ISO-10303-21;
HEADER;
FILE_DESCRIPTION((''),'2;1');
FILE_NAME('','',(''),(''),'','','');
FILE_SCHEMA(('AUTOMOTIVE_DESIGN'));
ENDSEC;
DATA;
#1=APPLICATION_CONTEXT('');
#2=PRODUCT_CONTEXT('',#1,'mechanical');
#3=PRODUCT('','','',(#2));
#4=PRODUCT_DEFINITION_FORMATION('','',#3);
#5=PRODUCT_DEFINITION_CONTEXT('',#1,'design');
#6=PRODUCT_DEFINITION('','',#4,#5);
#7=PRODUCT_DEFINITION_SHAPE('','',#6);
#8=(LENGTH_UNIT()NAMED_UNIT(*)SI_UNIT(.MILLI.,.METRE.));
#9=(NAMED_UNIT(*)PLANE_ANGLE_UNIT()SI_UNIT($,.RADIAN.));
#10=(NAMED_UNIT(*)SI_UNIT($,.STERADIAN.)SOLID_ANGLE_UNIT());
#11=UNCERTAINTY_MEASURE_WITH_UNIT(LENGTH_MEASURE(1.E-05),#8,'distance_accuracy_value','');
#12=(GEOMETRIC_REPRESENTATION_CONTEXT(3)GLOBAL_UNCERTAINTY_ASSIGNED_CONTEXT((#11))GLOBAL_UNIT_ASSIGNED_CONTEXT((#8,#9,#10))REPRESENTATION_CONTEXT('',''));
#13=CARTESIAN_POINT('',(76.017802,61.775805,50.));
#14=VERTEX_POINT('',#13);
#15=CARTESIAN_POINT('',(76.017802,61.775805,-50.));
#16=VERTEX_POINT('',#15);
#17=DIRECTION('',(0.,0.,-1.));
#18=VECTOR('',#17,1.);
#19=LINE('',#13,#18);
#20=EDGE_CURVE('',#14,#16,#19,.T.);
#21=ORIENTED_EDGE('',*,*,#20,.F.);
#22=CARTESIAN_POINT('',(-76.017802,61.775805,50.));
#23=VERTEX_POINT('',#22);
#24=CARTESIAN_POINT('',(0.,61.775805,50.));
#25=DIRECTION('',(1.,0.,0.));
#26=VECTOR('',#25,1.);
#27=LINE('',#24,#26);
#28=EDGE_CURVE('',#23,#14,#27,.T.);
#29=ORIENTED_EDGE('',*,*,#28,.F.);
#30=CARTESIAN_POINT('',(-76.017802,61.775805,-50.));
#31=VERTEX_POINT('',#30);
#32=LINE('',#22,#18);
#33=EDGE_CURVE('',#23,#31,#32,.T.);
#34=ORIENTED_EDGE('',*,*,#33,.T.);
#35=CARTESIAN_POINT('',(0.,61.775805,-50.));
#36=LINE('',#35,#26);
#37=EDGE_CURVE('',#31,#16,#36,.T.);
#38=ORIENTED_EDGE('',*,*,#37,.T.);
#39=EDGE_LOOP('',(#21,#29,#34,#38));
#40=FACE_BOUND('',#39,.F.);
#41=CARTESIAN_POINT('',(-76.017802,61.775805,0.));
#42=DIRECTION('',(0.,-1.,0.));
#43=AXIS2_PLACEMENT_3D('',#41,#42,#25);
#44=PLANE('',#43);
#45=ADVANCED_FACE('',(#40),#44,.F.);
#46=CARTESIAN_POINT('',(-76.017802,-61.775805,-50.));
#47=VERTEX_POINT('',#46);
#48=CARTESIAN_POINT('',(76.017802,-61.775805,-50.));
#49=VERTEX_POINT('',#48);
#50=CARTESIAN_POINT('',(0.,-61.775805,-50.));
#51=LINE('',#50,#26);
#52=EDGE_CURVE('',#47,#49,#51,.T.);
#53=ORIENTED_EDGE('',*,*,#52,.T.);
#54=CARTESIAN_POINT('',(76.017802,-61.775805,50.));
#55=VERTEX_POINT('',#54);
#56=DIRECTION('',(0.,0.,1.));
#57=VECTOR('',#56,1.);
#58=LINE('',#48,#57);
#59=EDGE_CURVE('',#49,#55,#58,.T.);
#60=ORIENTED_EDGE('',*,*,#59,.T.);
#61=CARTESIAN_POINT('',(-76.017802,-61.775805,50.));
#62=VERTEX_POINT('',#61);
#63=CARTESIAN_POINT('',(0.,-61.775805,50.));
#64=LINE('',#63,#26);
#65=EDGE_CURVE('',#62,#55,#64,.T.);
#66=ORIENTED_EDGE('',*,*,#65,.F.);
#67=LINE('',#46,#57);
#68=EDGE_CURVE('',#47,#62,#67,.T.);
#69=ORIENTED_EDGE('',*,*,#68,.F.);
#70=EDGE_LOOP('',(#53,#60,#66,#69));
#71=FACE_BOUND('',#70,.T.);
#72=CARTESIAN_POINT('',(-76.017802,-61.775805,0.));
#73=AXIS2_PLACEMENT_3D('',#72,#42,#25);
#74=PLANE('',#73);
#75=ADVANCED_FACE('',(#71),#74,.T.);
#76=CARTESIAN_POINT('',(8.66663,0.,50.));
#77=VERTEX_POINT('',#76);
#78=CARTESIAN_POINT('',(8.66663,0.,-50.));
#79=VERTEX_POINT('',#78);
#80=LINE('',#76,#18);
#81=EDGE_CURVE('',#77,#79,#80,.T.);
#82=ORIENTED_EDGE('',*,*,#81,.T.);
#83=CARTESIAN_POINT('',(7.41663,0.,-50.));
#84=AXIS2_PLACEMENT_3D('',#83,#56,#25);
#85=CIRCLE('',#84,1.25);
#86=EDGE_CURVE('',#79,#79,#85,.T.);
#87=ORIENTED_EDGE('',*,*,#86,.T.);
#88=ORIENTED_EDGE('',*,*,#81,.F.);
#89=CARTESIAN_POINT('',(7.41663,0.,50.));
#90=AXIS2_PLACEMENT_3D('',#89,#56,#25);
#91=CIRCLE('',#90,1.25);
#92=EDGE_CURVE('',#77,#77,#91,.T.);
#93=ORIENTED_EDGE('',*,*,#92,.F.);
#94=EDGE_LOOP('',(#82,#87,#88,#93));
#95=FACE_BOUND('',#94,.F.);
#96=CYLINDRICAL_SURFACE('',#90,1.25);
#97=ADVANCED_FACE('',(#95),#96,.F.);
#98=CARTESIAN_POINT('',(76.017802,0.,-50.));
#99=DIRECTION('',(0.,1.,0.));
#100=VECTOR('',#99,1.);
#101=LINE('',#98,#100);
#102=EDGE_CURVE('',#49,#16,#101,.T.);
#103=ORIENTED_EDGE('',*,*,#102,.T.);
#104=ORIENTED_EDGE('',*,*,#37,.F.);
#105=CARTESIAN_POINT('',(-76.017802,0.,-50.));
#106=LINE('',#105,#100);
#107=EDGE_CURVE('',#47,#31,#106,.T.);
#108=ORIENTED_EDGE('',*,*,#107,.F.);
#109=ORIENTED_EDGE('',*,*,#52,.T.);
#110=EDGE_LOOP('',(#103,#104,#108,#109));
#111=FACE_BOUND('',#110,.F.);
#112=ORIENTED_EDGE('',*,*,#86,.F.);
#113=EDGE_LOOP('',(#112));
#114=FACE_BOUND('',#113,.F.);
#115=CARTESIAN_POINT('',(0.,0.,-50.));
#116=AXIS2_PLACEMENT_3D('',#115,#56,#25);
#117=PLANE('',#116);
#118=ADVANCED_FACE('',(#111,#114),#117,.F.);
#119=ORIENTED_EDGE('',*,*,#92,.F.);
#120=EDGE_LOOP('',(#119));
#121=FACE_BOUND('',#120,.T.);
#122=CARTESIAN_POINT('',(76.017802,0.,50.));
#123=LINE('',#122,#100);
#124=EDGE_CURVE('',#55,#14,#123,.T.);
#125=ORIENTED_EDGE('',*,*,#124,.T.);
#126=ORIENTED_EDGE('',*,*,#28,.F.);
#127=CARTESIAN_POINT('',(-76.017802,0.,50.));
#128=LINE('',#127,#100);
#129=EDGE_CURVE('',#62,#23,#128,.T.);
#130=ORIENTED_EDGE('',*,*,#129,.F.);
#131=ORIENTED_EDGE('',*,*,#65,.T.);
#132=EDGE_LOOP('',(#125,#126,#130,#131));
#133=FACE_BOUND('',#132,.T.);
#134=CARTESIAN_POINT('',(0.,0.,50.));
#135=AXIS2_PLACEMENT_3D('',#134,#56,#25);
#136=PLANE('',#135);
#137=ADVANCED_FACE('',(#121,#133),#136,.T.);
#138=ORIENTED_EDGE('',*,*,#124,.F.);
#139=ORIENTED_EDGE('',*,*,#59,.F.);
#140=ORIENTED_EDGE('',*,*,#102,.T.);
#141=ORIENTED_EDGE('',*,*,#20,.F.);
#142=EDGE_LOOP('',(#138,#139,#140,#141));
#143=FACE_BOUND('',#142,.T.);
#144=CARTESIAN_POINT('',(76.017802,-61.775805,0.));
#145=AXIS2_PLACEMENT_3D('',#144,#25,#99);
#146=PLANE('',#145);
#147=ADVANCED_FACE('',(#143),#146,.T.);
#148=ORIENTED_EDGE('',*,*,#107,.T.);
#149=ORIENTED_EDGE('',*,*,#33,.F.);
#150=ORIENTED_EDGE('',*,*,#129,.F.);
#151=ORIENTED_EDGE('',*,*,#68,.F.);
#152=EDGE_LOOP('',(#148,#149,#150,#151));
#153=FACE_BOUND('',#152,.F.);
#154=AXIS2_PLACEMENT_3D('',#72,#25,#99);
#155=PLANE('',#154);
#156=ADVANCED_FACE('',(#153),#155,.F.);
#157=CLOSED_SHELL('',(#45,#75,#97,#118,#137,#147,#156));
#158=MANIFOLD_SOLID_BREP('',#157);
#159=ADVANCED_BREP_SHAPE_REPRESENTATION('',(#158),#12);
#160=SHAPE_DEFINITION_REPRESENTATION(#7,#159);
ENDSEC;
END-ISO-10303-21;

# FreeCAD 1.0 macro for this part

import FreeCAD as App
import Part
import Sketcher

V = App.Vector


def add_polygon(sketch, points):
    """Adds a closed chain of lines whose ends are joined by coincident constraints."""
    first, n = sketch.GeometryCount, len(points)
    for a, b in zip(points, points[1:] + points[:1]):
        sketch.addGeometry(Part.LineSegment(App.Vector(*a, 0), App.Vector(*b, 0)), False)
    for i in range(n):
        sketch.addConstraint(Sketcher.Constraint("Coincident", first + i, 2, first + (i + 1) % n, 1))

doc = App.newDocument("Part")
body = doc.addObject("PartDesign::Body", "Body")

sketch1 = body.newObject("Sketcher::SketchObject", "Sketch")
sketch1.AttachmentSupport = (doc.getObject("XY_Plane"), [""])
sketch1.MapMode = "FlatFace"
add_polygon(sketch1, [(-76, 62), (-76, -62), (76, -62), (76, 62)])
sketch1.addConstraint([
    Sketcher.Constraint("Vertical", 0),
    Sketcher.Constraint("Horizontal", 1),
    Sketcher.Constraint("Vertical", 2),
    Sketcher.Constraint("Horizontal", 3),
    Sketcher.Constraint("Symmetric", 0, 2, 2, 2, -1, 1),
    Sketcher.Constraint("DistanceY", 0, 2, 0, 1, 123.55161),
    Sketcher.Constraint("DistanceX", 1, 1, 1, 2, 152.035604),
])
pad1 = body.newObject("PartDesign::Pad", "Pad")
pad1.Profile = sketch1
pad1.Length = 100
pad1.Midplane = True

sketch2 = body.newObject("Sketcher::SketchObject", "Sketch001")
sketch2.AttachmentSupport = (doc.getObject("XY_Plane"), [""])
sketch2.MapMode = "FlatFace"
sketch2.AttachmentOffset = App.Placement(V(0, 0, 50), App.Rotation())
sketch2.addGeometry(Part.Circle(V(7.4, 0, 0), V(0, 0, 1), 1.2), False)
sketch2.addConstraint([
    Sketcher.Constraint("PointOnObject", 0, 3, -1),
    Sketcher.Constraint("Diameter", 0, 2.5),
    Sketcher.Constraint("DistanceX", -1, 1, 0, 3, 7.41663),
])
pocket1 = body.newObject("PartDesign::Pocket", "Pocket")
pocket1.Profile = sketch2
pocket1.Type = "ThroughAll"

doc.recompute()
